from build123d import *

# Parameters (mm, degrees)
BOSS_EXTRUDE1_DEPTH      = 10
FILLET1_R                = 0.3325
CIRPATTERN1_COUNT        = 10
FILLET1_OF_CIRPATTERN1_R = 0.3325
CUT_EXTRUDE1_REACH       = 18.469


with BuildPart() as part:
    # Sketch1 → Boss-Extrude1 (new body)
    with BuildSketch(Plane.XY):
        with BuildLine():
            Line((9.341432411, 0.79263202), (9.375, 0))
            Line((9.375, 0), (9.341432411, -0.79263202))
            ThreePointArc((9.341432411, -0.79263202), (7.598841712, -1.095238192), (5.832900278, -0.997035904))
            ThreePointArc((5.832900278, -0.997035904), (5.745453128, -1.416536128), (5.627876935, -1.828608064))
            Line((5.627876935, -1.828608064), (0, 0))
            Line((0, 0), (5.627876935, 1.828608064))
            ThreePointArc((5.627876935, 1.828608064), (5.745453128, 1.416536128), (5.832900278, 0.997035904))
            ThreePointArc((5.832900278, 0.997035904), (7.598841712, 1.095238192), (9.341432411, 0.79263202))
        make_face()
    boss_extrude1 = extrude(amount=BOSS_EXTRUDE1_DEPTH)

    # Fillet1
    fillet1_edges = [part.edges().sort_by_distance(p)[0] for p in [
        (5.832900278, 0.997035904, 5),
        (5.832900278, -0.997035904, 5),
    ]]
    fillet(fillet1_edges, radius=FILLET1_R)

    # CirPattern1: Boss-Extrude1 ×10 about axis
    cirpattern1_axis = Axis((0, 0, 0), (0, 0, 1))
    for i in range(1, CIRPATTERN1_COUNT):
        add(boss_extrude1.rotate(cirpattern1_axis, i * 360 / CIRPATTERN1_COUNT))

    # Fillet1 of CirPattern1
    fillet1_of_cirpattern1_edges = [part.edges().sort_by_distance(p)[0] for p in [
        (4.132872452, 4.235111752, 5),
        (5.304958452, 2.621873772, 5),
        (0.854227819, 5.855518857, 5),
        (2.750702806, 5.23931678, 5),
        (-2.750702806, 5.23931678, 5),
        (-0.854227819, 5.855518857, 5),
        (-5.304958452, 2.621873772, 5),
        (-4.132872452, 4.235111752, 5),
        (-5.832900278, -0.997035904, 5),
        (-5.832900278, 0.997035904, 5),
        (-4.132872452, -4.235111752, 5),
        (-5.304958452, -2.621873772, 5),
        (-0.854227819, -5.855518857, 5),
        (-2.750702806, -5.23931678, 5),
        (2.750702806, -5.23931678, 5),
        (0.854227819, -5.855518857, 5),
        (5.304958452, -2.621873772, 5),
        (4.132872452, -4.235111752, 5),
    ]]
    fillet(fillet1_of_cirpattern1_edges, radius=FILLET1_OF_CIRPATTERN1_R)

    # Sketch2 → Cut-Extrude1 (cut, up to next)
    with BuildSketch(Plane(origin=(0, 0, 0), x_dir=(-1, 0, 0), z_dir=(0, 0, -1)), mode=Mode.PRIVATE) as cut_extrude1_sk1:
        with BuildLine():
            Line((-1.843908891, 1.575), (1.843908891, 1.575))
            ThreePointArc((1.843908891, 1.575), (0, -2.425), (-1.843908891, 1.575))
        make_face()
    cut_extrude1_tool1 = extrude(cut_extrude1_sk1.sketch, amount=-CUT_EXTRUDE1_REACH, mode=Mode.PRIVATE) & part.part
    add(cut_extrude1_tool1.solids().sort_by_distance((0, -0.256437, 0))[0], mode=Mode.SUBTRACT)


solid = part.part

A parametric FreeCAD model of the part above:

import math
import FreeCAD as App
import Part
import Sketcher
from FreeCAD import Vector
Q = App.Units.Quantity


def edges_at(feature, points):
    """Names of the edges that pass closest to the given points."""
    edges = feature.Shape.Edges
    near = lambda p: min(range(len(edges)), key=lambda i: edges[i].distToShape(Part.Vertex(*p))[0])
    return sorted({f"Edge{near(p) + 1}" for p in points})

doc = App.newDocument("Part")
body = doc.addObject("PartDesign::Body", "Body")

# Sketch on XY plane
sketch1 = body.newObject("Sketcher::SketchObject", "Sketch")
sketch1.AttachmentSupport = (doc.getObject("XY_Plane"), [""])
sketch1.MapMode = "FlatFace"
sketch1.addGeometry(Part.LineSegment(Vector(9.4, 0, 0), Vector(9.3, 0.8, 0)), False)
sketch1.addGeometry(Part.ArcOfCircle(Part.Circle(Vector(7.1, -6.7, 0), Vector(0, 0, 1), 7.8), math.radians(74), math.radians(100)), False)
sketch1.addGeometry(Part.ArcOfCircle(Part.Circle(Vector(0, 0, 0), Vector(0, 0, 1), 5.9), math.radians(9.7), math.radians(18)), False)
sketch1.addGeometry(Part.LineSegment(Vector(5.6, 1.8, 0), Vector(0, 0, 0)), False)
sketch1.addGeometry(Part.LineSegment(Vector(0, 0, 0), Vector(5.6, -1.8, 0)), False)
sketch1.addGeometry(Part.ArcOfCircle(Part.Circle(Vector(0, 0, 0), Vector(0, 0, 1), 5.9), math.radians(-18), math.radians(-9.7)), False)
sketch1.addGeometry(Part.ArcOfCircle(Part.Circle(Vector(7.1, 6.7, 0), Vector(0, 0, 1), 7.8), math.radians(-100), math.radians(-74)), False)
sketch1.addGeometry(Part.LineSegment(Vector(9.3, -0.8, 0), Vector(9.4, 0, 0)), False)
sketch1.addConstraint(Sketcher.Constraint("Coincident", 0, 2, 1, 1))
sketch1.addConstraint(Sketcher.Constraint("Coincident", 1, 2, 2, 1))
sketch1.addConstraint(Sketcher.Constraint("Coincident", 2, 2, 3, 1))
sketch1.addConstraint(Sketcher.Constraint("Coincident", 3, 2, 4, 1))
sketch1.addConstraint(Sketcher.Constraint("Coincident", 4, 2, 5, 1))
sketch1.addConstraint(Sketcher.Constraint("Coincident", 5, 2, 6, 1))
sketch1.addConstraint(Sketcher.Constraint("Coincident", 6, 2, 7, 1))
sketch1.addConstraint(Sketcher.Constraint("Coincident", 7, 2, 0, 1))
sketch1.addConstraint(Sketcher.Constraint("Coincident", 2, 3, -1, 1))
sketch1.addConstraint(Sketcher.Constraint("Coincident", 5, 3, -1, 1))
sketch1.addConstraint(Sketcher.Constraint("Coincident", 3, 2, -1, 1))
sketch1.addConstraint(Sketcher.Constraint("Equal", 2, 5))
sketch1.addConstraint(Sketcher.Constraint("Equal", 1, 6))
sketch1.addConstraint(Sketcher.Constraint("Symmetric", 1, 3, 6, 3, -1))
sketch1.addConstraint(Sketcher.Constraint("PointOnObject", 7, 2, -1))
sketch1.addConstraint(Sketcher.Constraint("Vertical", 2, 2, 4, 2))
sketch1.addConstraint(Sketcher.Constraint("Vertical", 0, 2, 6, 2))
sketch1.addConstraint(Sketcher.Constraint("Angle", 3, Q("-162 deg")))
sketch1.addConstraint(Sketcher.Constraint("Radius", 2, Q("5.9175 mm")))
sketch1.addConstraint(Sketcher.Constraint("DistanceX", -1, 1, 7, 2, Q("9.375 mm")))
sketch1.addConstraint(Sketcher.Constraint("Radius", 1, Q("7.791496 mm")))
sketch1.addConstraint(Sketcher.Constraint("DistanceX", -1, 1, 1, 2, Q("5.8329 mm")))
sketch1.addConstraint(Sketcher.Constraint("DistanceY", 1, 3, 0, 2, Q("7.475701 mm")))
sketch1.addConstraint(Sketcher.Constraint("DistanceY", 1, 3, -1, 1, Q("6.683069 mm")))
pad1 = body.newObject("PartDesign::Pad", "Pad")
pad1.Profile = sketch1
pad1.Length = 10
doc.recompute()

fillet = body.newObject("PartDesign::Fillet", "Fillet")
fillet.Base = (pad1, edges_at(pad1, [(5.833, 0.997, 5), (5.833, -0.997, 5)]))
fillet.Radius = 0.3325
doc.recompute()

polarpattern = body.newObject("PartDesign::PolarPattern", "PolarPattern")
polarpattern.Originals = [pad1]
polarpattern.Axis = (doc.getObject("Z_Axis"), [""])
polarpattern.Angle = 360
polarpattern.Occurrences = 10
body.Tip = polarpattern
doc.recompute()

fillet2 = body.newObject("PartDesign::Fillet", "Fillet001")
fillet2.Base = (polarpattern, edges_at(polarpattern, [
    (4.133, 4.235, 5),
    (5.305, 2.622, 5),
    (0.854, 5.856, 5),
    (2.751, 5.239, 5),
    (-2.751, 5.239, 5),
    (-0.854, 5.856, 5),
    (-5.305, 2.622, 5),
    (-4.133, 4.235, 5),
    (-5.833, -0.997, 5),
    (-5.833, 0.997, 5),
    (-4.133, -4.235, 5),
    (-5.305, -2.622, 5),
    (-0.854, -5.856, 5),
    (-2.751, -5.239, 5),
    (2.751, -5.239, 5),
    (0.854, -5.856, 5),
    (5.305, -2.622, 5),
    (4.133, -4.235, 5),
]))
fillet2.Radius = 0.3325

# Sketch on XY plane
sketch2 = body.newObject("Sketcher::SketchObject", "Sketch001")
sketch2.AttachmentSupport = (doc.getObject("XY_Plane"), [""])
sketch2.MapMode = "FlatFace"
sketch2.addGeometry(Part.LineSegment(Vector(-1.8, 1.6, 0), Vector(1.8, 1.6, 0)), False)
sketch2.addGeometry(Part.ArcOfCircle(Part.Circle(Vector(0, 0, 0), Vector(0, 0, 1), 2.4), math.radians(139), math.radians(401)), False)
sketch2.addConstraint(Sketcher.Constraint("Coincident", 0, 1, 1, 1))
sketch2.addConstraint(Sketcher.Constraint("Coincident", 1, 2, 0, 2))
sketch2.addConstraint(Sketcher.Constraint("Horizontal", 0))
sketch2.addConstraint(Sketcher.Constraint("Coincident", 1, 3, -1, 1))
sketch2.addConstraint(Sketcher.Constraint("Radius", 1, Q("2.425 mm")))
sketch2.addConstraint(Sketcher.Constraint("DistanceY", -1, 1, 0, 1, Q("1.575 mm")))
pocket1 = body.newObject("PartDesign::Pocket", "Pocket")
pocket1.Profile = sketch2
pocket1.Type = "UpToFirst"
pocket1.Reversed = True

doc.recompute()
